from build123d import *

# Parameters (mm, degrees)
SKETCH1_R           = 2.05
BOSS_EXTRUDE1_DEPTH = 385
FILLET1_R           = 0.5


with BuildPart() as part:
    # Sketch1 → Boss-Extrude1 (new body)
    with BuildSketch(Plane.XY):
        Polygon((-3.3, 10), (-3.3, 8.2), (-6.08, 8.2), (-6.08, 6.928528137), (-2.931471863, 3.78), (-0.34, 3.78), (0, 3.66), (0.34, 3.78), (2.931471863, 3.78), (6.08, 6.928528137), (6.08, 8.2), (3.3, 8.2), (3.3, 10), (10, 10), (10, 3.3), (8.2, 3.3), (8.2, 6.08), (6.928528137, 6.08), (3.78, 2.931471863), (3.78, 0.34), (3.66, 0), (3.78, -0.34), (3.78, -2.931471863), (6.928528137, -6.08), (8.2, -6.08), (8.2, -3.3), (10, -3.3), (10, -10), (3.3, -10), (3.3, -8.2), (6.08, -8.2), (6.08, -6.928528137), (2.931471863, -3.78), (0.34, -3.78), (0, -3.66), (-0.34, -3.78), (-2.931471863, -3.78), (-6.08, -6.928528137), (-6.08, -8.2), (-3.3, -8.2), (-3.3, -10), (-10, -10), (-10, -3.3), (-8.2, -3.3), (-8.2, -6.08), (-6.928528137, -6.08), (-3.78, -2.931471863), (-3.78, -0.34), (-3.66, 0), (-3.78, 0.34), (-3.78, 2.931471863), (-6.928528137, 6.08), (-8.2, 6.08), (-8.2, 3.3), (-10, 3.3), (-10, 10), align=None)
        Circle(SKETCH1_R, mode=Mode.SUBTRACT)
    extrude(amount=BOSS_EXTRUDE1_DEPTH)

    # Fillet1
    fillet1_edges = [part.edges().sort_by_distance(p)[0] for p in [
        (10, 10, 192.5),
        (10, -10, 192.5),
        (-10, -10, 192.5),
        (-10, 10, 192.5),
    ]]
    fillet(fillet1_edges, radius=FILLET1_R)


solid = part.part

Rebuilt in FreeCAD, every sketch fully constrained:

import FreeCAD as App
import Part
import Sketcher

V = App.Vector


def edges_at(feature, points):
    """Names of the edges that pass closest to the given points."""
    edges = feature.Shape.Edges
    near = lambda p: min(range(len(edges)), key=lambda i: edges[i].distToShape(Part.Vertex(*p))[0])
    return sorted({f"Edge{near(p) + 1}" for p in points})


def add_polygon(sketch, points):
    """Adds a closed chain of lines whose ends are joined by coincident constraints."""
    first, n = sketch.GeometryCount, len(points)
    for a, b in zip(points, points[1:] + points[:1]):
        sketch.addGeometry(Part.LineSegment(App.Vector(*a, 0), App.Vector(*b, 0)), False)
    for i in range(n):
        sketch.addConstraint(Sketcher.Constraint("Coincident", first + i, 2, first + (i + 1) % n, 1))

doc = App.newDocument("Part")
body = doc.addObject("PartDesign::Body", "Body")

# Sketch on XY plane
sketch1 = body.newObject("Sketcher::SketchObject", "Sketch")
sketch1.AttachmentSupport = (doc.getObject("XY_Plane"), [""])
sketch1.MapMode = "FlatFace"
add_polygon(sketch1, [(-3.3, 8.2), (-3.3, 10), (-10, 10), (-10, 3.3), (-8.2, 3.3), (-8.2, 6.08), (-6.928528, 6.08), (-3.78, 2.931472), (-3.78, 0.34), (-3.66, 0), (-3.78, -0.34), (-3.78, -2.931472), (-6.928528, -6.08), (-8.2, -6.08), (-8.2, -3.3), (-10, -3.3), (-10, -10), (-3.3, -10), (-3.3, -8.2), (-6.08, -8.2), (-6.08, -6.928528), (-2.931472, -3.78), (-0.34, -3.78), (0, -3.66), (0.34, -3.78), (2.931472, -3.78), (6.08, -6.928528), (6.08, -8.2), (3.3, -8.2), (3.3, -10), (10, -10), (10, -3.3), (8.2, -3.3), (8.2, -6.08), (6.928528, -6.08), (3.78, -2.931472), (3.78, -0.34), (3.66, 0), (3.78, 0.34), (3.78, 2.931472), (6.928528, 6.08), (8.2, 6.08), (8.2, 3.3), (10, 3.3), (10, 10), (3.3, 10), (3.3, 8.2), (6.08, 8.2), (6.08, 6.928528), (2.931472, 3.78), (0.34, 3.78), (0, 3.66), (-0.34, 3.78), (-2.931472, 3.78), (-6.08, 6.928528), (-6.08, 8.2)])  # lines 0-55
sketch1.addGeometry(Part.Circle(V(0, 0, 0), V(0, 0, 1), 2.05), False)  # 56
sketch1.addConstraint([
    Sketcher.Constraint("Vertical", 0),
    Sketcher.Constraint("Horizontal", 1),
    Sketcher.Constraint("Vertical", 2),
    Sketcher.Constraint("Horizontal", 3),
    Sketcher.Constraint("Vertical", 4),
    Sketcher.Constraint("Horizontal", 5),
    Sketcher.Constraint("Vertical", 7),
    Sketcher.Constraint("Vertical", 10),
    Sketcher.Constraint("Horizontal", 12),
    Sketcher.Constraint("Vertical", 13),
    Sketcher.Constraint("Horizontal", 14),
    Sketcher.Constraint("Vertical", 15),
    Sketcher.Constraint("Horizontal", 16),
    Sketcher.Constraint("Vertical", 17),
    Sketcher.Constraint("Horizontal", 18),
    Sketcher.Constraint("Vertical", 19),
    Sketcher.Constraint("Horizontal", 21),
    Sketcher.Constraint("Horizontal", 24),
    Sketcher.Constraint("Vertical", 26),
    Sketcher.Constraint("Horizontal", 27),
    Sketcher.Constraint("Vertical", 28),
    Sketcher.Constraint("Horizontal", 29),
    Sketcher.Constraint("Vertical", 30),
    Sketcher.Constraint("Horizontal", 31),
    Sketcher.Constraint("Vertical", 32),
    Sketcher.Constraint("Horizontal", 33),
    Sketcher.Constraint("Vertical", 35),
    Sketcher.Constraint("Vertical", 38),
    Sketcher.Constraint("Horizontal", 40),
    Sketcher.Constraint("Vertical", 41),
    Sketcher.Constraint("Horizontal", 42),
    Sketcher.Constraint("Vertical", 43),
    Sketcher.Constraint("Horizontal", 44),
    Sketcher.Constraint("Vertical", 45),
    Sketcher.Constraint("Horizontal", 46),
    Sketcher.Constraint("Vertical", 47),
    Sketcher.Constraint("Horizontal", 49),
    Sketcher.Constraint("Horizontal", 52),
    Sketcher.Constraint("Vertical", 54),
    Sketcher.Constraint("Horizontal", 55),
    Sketcher.Constraint("Coincident", 56, 3, -1, 1),
    Sketcher.Constraint("Symmetric", 0, 2, 28, 2, -1, 1),
    Sketcher.Constraint("Symmetric", 2, 2, 30, 2, -1, 1),
    Sketcher.Constraint("Symmetric", 4, 2, 32, 2, -1, 1),
    Sketcher.Constraint("Symmetric", 6, 2, 34, 2, -1, 1),
    Sketcher.Constraint("Symmetric", 8, 2, 36, 2, -1, 1),
    Sketcher.Constraint("Symmetric", 9, 2, 37, 2, -1, 1),
    Sketcher.Constraint("Symmetric", 11, 2, 39, 2, -1, 1),
    Sketcher.Constraint("Symmetric", 13, 2, 41, 2, -1, 1),
    Sketcher.Constraint("Symmetric", 15, 2, 43, 2, -1, 1),
    Sketcher.Constraint("Symmetric", 17, 2, 45, 2, -1, 1),
    Sketcher.Constraint("Symmetric", 19, 2, 47, 2, -1, 1),
    Sketcher.Constraint("Symmetric", 20, 2, 48, 2, -1, 1),
    Sketcher.Constraint("Symmetric", 22, 2, 50, 2, -1, 1),
    Sketcher.Constraint("Symmetric", 23, 2, 51, 2, -1, 1),
    Sketcher.Constraint("Symmetric", 25, 2, 53, 2, -1, 1),
    Sketcher.Constraint("Symmetric", 21, 2, 23, 2, -2),
    Sketcher.Constraint("Symmetric", 19, 2, 25, 2, -2),
    Sketcher.Constraint("Symmetric", 17, 2, 27, 2, -2),
    Sketcher.Constraint("Symmetric", 15, 2, 29, 2, -2),
    Sketcher.Constraint("Symmetric", 13, 2, 31, 2, -2),
    Sketcher.Constraint("Symmetric", 11, 2, 33, 2, -2),
    Sketcher.Constraint("Symmetric", 10, 2, 34, 2, -2),
    Sketcher.Constraint("PointOnObject", 8, 2, -1),
    Sketcher.Constraint("PointOnObject", 22, 2, -2),
    Sketcher.Constraint("Perpendicular", 6, 11),
    Sketcher.Constraint("Parallel", 11, 20),
    Sketcher.Constraint("Perpendicular", 8, 22),
    Sketcher.Constraint("Perpendicular", 9, 23),
    Sketcher.Constraint("Perpendicular", 20, 25),
    Sketcher.Constraint("Parallel", 25, 34),
    Sketcher.Constraint("Perpendicular", 22, 36),
    Sketcher.Constraint("Perpendicular", 34, 39),
    Sketcher.Constraint("Perpendicular", 36, 50),
    Sketcher.Constraint("Perpendicular", 48, 53),
    Sketcher.Constraint("Horizontal", 46, 2, 54, 2),
    Sketcher.Constraint("Equal", 42, 0),
    Sketcher.Constraint("Equal", 44, 2),
    Sketcher.Constraint("Equal", 55, 4),
    Sketcher.Constraint("Equal", 52, 7),
    Sketcher.Constraint("Equal", 40, 19),
    Sketcher.Constraint("Equal", 11, 20),
    Sketcher.Constraint("Equal", 9, 22),
    Sketcher.Constraint("Diameter", 56, 4.1),
    Sketcher.Constraint("DistanceX", 1, 2, 1, 1, 6.7),
    Sketcher.Constraint("DistanceX", 3, 1, 3, 2, 1.8),
    Sketcher.Constraint("DistanceY", -1, 1, 0, 2, 10.0),
    Sketcher.Constraint("DistanceX", 18, 2, 18, 1, 2.78),
    Sketcher.Constraint("DistanceX", 6, 2, -1, 1, 3.78),
    Sketcher.Constraint("DistanceY", -1, 1, 7, 2, 0.34),
    Sketcher.Constraint("DistanceX", 8, 2, -1, 1, 3.66),
    Sketcher.Constraint("DistanceX", 5, 1, 5, 2, 1.271472),
])
pad1 = body.newObject("PartDesign::Pad", "Pad")
pad1.Profile = sketch1
pad1.Length = 385
doc.recompute()

fillet = body.newObject("PartDesign::Fillet", "Fillet")
fillet.Base = (pad1, edges_at(pad1, [
    (10, 10, 192.5),
    (10, -10, 192.5),
    (-10, -10, 192.5),
    (-10, 10, 192.5),
]))
fillet.Radius = 0.5

doc.recompute()
